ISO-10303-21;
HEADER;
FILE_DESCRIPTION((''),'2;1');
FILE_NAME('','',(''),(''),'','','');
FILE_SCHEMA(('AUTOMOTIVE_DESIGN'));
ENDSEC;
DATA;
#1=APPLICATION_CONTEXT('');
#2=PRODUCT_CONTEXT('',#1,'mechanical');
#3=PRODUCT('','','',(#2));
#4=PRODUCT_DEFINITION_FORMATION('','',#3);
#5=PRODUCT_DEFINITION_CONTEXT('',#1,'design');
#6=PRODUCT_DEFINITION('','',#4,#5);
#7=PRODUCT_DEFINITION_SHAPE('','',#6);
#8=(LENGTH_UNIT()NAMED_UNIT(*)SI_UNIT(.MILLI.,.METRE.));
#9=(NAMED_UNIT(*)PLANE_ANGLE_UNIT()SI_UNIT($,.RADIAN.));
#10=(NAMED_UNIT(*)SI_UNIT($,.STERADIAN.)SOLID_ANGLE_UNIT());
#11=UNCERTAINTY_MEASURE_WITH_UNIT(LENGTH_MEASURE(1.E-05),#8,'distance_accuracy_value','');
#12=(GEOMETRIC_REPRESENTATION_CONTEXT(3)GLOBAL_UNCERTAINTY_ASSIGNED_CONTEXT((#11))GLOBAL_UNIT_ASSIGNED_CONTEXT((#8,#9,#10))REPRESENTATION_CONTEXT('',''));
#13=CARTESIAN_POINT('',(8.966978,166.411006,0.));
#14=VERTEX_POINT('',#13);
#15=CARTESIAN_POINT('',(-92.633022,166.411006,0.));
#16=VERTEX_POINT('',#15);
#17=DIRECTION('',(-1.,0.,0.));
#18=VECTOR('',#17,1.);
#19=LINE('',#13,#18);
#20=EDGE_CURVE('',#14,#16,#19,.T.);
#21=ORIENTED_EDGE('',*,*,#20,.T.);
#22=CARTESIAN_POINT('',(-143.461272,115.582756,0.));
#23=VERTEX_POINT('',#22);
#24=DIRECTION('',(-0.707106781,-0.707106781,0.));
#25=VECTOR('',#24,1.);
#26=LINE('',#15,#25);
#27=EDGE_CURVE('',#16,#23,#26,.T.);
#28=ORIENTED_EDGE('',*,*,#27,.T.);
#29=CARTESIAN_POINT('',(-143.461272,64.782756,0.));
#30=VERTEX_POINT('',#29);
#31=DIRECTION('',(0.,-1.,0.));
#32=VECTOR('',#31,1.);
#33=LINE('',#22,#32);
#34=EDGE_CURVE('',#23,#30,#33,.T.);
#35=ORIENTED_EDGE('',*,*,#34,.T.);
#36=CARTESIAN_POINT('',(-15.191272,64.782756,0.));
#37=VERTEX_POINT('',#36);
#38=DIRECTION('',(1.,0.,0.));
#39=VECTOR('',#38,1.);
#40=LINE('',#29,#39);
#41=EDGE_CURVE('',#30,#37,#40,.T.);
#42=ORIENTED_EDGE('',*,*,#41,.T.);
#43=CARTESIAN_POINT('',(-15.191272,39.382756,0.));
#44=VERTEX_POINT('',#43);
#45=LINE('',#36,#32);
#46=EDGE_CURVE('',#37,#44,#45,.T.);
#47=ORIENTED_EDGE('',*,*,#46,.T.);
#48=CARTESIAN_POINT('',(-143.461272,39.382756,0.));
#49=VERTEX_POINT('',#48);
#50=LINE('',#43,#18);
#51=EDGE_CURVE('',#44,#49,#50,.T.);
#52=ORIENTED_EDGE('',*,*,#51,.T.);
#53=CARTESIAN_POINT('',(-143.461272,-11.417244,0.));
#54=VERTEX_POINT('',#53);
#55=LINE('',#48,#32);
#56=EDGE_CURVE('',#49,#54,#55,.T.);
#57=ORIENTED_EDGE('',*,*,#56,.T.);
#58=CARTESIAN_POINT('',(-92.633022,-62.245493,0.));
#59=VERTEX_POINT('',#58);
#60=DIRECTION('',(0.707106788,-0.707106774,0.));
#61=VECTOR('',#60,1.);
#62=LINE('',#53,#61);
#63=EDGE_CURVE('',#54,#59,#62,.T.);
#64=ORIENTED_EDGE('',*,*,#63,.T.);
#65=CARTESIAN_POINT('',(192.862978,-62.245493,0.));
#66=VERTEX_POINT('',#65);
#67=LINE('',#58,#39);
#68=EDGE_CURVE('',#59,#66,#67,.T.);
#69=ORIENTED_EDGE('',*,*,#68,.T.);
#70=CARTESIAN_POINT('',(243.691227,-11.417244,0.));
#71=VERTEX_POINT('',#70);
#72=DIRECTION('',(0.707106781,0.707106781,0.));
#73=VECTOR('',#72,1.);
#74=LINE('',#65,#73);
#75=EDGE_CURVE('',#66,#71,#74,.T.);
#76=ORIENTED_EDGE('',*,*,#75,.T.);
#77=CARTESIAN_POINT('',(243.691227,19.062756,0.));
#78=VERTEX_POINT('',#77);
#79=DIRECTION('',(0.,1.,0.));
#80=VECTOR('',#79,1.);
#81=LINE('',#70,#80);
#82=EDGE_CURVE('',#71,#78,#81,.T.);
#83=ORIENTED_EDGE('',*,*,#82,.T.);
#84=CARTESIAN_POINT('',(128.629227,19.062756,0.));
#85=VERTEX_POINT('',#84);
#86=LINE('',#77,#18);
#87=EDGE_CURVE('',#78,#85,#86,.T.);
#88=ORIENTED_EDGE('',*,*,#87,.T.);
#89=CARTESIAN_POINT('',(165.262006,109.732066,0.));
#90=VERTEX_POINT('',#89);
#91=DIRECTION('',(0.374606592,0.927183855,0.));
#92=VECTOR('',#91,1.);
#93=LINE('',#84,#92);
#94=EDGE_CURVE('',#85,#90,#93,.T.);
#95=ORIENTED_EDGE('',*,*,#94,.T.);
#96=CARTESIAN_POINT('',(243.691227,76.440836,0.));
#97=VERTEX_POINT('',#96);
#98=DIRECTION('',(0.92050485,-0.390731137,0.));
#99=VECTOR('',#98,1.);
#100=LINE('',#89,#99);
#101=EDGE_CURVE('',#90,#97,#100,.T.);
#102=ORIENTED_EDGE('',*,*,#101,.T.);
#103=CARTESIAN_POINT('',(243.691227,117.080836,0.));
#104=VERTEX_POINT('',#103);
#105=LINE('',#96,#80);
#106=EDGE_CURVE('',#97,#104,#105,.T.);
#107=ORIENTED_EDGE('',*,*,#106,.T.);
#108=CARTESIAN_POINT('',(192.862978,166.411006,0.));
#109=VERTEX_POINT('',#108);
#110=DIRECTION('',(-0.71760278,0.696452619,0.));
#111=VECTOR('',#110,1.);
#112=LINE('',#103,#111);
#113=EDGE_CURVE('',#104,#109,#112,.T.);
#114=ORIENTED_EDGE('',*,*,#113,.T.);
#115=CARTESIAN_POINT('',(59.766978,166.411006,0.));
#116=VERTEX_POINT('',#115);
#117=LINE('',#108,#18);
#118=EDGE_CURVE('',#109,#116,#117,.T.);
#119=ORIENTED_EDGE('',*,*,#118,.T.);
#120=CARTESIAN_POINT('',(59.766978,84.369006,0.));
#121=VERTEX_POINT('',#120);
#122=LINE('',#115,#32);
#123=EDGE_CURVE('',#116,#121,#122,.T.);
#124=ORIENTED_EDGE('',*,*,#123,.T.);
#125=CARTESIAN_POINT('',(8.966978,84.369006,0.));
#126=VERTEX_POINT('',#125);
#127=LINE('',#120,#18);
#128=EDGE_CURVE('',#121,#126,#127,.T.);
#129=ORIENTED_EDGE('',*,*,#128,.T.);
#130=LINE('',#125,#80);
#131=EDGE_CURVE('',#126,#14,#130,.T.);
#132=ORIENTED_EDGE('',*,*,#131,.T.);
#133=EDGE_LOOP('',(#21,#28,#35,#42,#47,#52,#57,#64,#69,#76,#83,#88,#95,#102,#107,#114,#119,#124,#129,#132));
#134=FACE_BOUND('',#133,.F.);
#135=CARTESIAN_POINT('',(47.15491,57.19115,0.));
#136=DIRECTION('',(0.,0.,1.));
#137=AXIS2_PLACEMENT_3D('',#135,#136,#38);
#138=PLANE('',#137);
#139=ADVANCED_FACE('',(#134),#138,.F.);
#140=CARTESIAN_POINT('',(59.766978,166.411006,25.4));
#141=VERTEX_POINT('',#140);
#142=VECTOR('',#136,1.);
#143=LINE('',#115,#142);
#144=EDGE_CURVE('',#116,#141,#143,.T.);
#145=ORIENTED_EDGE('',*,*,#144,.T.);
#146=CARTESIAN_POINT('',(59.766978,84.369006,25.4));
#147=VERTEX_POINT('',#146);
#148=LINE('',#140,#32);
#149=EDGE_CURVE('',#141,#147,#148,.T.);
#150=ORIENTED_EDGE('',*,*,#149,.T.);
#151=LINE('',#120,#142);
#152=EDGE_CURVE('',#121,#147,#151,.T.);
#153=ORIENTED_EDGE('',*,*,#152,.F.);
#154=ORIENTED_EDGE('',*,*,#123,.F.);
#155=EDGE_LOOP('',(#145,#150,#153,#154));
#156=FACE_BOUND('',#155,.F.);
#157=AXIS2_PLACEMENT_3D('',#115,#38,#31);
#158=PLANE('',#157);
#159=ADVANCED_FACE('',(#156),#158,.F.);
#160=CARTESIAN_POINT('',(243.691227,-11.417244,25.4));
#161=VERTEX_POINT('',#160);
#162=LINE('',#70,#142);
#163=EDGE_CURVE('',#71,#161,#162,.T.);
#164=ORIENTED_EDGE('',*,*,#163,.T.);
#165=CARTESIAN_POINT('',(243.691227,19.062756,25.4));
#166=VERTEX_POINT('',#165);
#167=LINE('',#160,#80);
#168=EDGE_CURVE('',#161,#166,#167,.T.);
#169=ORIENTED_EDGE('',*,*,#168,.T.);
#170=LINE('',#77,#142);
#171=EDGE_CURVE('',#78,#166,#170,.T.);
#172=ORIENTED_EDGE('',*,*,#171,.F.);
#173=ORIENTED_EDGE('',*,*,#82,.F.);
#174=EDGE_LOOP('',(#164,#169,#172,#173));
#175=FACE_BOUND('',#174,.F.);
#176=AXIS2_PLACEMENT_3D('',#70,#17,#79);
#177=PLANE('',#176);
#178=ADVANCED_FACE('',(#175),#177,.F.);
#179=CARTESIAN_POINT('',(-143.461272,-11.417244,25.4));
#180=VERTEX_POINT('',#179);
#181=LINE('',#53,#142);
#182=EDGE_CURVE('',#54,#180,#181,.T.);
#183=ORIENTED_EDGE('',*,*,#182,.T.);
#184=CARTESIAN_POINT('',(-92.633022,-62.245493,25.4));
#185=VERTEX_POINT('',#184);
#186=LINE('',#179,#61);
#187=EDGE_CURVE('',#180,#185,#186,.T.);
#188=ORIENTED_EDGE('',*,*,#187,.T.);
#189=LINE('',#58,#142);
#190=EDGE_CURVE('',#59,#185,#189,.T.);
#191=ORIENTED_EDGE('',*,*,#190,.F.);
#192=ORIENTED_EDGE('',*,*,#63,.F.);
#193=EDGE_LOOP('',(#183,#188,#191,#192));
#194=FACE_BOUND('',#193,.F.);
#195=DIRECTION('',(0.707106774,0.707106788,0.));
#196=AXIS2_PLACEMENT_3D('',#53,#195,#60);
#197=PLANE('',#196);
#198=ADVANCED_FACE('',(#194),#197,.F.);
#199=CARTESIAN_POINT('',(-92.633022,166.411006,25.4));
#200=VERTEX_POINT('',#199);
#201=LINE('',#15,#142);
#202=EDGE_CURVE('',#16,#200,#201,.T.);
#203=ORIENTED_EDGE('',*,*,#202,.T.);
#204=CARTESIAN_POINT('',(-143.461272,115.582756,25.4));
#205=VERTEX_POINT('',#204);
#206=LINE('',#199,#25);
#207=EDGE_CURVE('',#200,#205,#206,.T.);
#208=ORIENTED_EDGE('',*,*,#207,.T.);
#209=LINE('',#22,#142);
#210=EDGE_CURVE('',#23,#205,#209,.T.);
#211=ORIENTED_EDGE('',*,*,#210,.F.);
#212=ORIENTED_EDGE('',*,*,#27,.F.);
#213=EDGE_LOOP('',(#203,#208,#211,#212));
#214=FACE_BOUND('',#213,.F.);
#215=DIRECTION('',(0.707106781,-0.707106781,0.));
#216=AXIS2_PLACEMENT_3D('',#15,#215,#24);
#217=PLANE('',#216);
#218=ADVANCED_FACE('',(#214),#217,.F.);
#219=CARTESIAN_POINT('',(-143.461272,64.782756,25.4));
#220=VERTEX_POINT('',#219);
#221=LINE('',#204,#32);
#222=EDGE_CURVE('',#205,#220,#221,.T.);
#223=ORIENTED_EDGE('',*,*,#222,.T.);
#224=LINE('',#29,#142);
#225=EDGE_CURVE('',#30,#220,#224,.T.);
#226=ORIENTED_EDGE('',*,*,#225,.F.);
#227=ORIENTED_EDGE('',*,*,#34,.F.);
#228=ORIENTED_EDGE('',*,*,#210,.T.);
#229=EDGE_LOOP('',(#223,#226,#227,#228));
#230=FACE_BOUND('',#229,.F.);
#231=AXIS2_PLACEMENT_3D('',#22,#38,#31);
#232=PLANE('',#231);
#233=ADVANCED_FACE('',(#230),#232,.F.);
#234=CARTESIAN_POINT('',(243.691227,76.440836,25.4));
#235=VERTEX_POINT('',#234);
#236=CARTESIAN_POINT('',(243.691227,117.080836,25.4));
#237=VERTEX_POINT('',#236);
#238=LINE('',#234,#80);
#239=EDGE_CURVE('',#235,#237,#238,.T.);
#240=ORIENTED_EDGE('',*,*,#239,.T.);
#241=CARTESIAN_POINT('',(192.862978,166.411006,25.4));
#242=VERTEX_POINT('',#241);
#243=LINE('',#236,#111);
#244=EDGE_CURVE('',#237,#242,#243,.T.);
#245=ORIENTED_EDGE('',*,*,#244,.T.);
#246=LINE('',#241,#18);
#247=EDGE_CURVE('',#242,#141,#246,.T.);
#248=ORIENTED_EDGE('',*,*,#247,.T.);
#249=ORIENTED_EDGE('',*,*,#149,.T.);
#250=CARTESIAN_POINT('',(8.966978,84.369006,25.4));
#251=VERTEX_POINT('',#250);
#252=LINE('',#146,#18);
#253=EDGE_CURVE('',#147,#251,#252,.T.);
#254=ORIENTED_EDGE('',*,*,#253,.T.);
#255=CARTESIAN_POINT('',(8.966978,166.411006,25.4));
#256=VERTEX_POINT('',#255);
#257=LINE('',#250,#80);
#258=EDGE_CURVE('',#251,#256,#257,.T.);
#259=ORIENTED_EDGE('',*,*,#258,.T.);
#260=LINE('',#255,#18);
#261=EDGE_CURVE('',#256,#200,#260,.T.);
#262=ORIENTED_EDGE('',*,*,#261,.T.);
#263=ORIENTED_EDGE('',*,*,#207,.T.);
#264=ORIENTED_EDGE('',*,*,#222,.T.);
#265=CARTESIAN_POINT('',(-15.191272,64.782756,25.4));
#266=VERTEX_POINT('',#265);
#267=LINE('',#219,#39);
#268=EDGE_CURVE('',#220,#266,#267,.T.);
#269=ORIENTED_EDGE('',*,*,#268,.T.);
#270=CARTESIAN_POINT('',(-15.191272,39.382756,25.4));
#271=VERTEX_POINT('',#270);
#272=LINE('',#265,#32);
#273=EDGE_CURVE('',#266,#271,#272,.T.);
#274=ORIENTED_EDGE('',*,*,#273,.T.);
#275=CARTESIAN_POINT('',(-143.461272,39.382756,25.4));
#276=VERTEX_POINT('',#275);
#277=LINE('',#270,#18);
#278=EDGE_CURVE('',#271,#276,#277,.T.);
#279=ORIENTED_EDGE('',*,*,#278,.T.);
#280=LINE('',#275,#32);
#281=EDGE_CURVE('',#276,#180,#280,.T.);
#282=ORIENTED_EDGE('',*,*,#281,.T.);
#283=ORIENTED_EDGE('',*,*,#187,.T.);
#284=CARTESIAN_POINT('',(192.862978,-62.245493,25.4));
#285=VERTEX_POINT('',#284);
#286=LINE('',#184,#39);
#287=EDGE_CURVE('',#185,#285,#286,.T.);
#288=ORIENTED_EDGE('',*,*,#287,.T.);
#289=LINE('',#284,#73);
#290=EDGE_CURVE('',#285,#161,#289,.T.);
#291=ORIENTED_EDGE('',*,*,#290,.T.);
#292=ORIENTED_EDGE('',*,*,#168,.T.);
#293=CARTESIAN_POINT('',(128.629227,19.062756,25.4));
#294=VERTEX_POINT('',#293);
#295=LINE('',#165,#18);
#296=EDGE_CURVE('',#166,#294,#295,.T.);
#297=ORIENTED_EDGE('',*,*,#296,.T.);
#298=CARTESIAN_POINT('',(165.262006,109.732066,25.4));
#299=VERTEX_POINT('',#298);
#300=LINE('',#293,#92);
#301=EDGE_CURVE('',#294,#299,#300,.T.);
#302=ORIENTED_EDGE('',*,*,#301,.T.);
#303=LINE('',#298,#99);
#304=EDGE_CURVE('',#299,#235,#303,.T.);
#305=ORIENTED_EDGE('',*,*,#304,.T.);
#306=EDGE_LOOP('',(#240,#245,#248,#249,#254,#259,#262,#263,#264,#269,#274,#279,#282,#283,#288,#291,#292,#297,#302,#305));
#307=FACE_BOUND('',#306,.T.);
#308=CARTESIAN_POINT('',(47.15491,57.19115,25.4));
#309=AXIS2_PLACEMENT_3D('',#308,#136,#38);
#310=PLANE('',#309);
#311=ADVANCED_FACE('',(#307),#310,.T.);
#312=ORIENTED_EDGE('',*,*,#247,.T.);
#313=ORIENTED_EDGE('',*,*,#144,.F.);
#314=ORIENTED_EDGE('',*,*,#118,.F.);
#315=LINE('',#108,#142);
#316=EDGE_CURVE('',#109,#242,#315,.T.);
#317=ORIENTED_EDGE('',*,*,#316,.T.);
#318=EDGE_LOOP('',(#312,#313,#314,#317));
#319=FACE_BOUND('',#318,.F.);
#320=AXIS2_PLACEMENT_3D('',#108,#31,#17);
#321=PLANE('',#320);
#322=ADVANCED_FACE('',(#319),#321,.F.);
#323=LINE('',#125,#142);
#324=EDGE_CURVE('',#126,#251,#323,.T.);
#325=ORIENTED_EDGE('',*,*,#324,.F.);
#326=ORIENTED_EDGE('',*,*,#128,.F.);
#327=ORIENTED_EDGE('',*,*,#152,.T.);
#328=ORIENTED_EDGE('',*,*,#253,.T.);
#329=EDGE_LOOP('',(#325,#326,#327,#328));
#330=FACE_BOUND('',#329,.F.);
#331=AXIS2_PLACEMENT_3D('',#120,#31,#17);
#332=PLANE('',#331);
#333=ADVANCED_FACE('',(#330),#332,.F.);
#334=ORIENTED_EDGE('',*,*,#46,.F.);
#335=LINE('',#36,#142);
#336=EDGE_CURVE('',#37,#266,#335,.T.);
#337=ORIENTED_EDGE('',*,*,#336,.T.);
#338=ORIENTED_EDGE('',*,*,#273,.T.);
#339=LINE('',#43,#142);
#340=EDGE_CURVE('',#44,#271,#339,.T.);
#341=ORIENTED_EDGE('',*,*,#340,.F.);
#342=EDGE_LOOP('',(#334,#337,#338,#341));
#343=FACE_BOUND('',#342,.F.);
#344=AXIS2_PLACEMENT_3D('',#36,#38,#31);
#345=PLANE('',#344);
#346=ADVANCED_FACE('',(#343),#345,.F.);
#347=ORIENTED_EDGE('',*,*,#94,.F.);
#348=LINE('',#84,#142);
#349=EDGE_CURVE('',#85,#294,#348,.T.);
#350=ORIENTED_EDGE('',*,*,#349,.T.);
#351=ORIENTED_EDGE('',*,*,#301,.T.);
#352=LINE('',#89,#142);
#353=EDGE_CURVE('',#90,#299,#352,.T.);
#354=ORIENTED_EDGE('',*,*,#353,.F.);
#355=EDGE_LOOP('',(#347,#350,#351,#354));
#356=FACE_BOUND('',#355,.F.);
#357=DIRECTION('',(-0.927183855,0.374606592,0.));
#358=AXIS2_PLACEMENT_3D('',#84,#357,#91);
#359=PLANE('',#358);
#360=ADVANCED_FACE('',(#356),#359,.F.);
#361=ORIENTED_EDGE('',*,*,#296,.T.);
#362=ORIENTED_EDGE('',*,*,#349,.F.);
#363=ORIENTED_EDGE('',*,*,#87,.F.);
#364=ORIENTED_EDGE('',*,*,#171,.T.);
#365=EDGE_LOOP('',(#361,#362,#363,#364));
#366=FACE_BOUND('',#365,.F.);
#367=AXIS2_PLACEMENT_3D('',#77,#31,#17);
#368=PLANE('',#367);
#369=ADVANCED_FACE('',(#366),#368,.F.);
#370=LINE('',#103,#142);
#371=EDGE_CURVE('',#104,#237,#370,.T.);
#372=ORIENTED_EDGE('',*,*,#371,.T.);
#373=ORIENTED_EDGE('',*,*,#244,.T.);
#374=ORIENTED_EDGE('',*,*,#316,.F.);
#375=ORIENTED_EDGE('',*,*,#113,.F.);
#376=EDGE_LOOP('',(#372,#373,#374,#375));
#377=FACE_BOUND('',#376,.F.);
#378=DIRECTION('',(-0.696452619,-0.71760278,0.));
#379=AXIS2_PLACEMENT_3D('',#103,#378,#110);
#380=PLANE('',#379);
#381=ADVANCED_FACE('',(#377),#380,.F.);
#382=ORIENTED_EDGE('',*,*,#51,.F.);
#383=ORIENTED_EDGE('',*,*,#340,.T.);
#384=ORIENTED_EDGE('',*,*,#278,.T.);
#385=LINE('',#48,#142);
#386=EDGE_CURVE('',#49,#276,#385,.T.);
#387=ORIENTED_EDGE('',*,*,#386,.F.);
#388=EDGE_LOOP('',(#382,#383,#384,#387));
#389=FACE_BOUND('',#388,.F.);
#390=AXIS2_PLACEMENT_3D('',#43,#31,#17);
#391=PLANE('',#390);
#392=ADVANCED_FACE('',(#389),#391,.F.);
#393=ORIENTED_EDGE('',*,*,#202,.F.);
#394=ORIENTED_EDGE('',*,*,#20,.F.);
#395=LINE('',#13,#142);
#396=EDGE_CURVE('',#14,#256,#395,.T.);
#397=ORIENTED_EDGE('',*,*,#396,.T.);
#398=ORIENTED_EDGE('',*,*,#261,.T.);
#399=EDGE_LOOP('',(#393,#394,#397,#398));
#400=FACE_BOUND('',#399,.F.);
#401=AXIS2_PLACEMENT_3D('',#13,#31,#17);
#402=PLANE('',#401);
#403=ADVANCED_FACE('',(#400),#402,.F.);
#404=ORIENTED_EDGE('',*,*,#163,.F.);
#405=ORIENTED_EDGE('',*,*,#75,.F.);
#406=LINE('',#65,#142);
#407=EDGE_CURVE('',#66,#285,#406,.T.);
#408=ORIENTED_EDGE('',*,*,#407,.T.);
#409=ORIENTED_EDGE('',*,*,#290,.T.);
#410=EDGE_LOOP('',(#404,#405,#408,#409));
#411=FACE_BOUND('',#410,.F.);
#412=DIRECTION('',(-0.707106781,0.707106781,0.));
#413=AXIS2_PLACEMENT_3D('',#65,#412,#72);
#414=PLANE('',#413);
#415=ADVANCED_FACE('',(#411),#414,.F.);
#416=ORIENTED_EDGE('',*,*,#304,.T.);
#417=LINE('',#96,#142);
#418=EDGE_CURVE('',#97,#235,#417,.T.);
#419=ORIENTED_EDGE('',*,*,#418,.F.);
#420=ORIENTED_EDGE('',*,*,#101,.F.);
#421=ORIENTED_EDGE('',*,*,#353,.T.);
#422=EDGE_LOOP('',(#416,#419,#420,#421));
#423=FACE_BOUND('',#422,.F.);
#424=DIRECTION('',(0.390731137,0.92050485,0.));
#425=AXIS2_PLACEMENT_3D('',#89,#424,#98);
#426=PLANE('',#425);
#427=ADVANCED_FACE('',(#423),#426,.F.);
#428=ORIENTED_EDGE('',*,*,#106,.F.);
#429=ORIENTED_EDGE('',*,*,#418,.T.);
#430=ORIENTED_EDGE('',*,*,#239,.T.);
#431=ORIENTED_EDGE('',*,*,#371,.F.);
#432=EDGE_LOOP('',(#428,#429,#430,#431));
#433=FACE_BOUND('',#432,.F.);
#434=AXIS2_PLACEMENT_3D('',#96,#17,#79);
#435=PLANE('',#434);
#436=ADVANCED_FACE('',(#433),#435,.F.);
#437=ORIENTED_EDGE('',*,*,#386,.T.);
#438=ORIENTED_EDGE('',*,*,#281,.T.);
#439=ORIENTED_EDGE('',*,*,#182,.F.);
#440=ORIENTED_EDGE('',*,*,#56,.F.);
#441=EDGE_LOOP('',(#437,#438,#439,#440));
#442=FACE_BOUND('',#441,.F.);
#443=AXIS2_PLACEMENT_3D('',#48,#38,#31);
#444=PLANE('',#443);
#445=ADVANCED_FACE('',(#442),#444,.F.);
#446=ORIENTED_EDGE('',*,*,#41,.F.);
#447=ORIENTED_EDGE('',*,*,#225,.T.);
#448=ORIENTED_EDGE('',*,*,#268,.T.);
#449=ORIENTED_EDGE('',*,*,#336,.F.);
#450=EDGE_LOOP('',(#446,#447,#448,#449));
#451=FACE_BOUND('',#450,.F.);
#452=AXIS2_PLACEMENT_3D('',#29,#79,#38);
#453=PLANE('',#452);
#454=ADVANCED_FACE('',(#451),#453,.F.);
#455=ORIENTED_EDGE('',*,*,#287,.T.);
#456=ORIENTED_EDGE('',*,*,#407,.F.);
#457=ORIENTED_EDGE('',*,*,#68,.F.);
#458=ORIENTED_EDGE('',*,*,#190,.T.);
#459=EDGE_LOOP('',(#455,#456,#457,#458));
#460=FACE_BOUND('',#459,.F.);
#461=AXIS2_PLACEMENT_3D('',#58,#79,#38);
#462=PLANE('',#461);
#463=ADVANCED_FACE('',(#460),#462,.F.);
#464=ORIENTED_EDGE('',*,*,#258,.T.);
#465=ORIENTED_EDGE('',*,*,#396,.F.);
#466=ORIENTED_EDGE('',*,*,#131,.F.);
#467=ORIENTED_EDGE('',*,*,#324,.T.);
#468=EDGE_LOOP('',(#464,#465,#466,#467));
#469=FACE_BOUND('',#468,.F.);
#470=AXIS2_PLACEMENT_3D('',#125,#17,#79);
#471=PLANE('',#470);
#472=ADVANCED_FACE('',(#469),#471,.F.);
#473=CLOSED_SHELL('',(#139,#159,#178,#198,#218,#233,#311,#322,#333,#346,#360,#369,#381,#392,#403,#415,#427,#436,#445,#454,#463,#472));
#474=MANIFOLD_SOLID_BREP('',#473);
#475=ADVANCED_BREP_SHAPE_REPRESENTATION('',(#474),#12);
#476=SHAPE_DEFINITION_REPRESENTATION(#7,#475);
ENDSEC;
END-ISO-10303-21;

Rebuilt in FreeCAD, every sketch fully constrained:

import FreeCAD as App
import Part
import Sketcher
from FreeCAD import Vector
Q = App.Units.Quantity


def add_polygon(sketch, points):
    """Adds a closed chain of lines whose ends are joined by coincident constraints."""
    first, n = sketch.GeometryCount, len(points)
    for a, b in zip(points, points[1:] + points[:1]):
        sketch.addGeometry(Part.LineSegment(App.Vector(*a, 0), App.Vector(*b, 0)), False)
    for i in range(n):
        sketch.addConstraint(Sketcher.Constraint("Coincident", first + i, 2, first + (i + 1) % n, 1))

doc = App.newDocument("Part")
params = doc.addObject("Spreadsheet::Sheet", "Params")
for row, (alias, value) in enumerate([
    ("sketch1_width", "2 in"),
    ("sketch1_width2", "4 in"),
    ("sketch1_height", "1 in"),
    ("sketch1_height2", "1.2 in"),
    ("sketch1_height3", "1.6 in"),
    ("pad1_length", "1 in"),
], start=1):
    params.set(f"A{row}", alias)
    params.set(f"B{row}", "=" + value)
    params.setAlias(f"B{row}", alias)

body = doc.addObject("PartDesign::Body", "Body")

# Sketch on XY plane
sketch1 = doc.addObject("Sketcher::SketchObject", "Sketch")
body.addObject(sketch1)
sketch1.AttachmentSupport = (doc.XY_Plane, [""])
sketch1.MapMode = "FlatFace"
add_polygon(sketch1, [(-143, -11), (-93, -62), (193, -62), (244, -11), (244, 19), (129, 19), (165, 110), (244, 76), (244, 117), (193, 166), (60, 166), (60, 84), (9, 84), (9, 166), (-93, 166), (-143, 116), (-143, 65), (-15, 65), (-15, 39), (-143, 39)])  # lines 0-19
sketch1.addConstraint([
    Sketcher.Constraint("Horizontal", 1),
    Sketcher.Constraint("Vertical", 3),
    Sketcher.Constraint("Horizontal", 4),
    Sketcher.Constraint("Vertical", 7),
    Sketcher.Constraint("Horizontal", 9),
    Sketcher.Constraint("Vertical", 10),
    Sketcher.Constraint("Horizontal", 11),
    Sketcher.Constraint("Vertical", 12),
    Sketcher.Constraint("Horizontal", 13),
    Sketcher.Constraint("Vertical", 15),
    Sketcher.Constraint("Horizontal", 16),
    Sketcher.Constraint("Vertical", 17),
    Sketcher.Constraint("Horizontal", 18),
    Sketcher.Constraint("Vertical", 19),
    Sketcher.Constraint("Perpendicular", 0, 2),
    Sketcher.Constraint("Parallel", 2, 14),
    Sketcher.Constraint("Horizontal", 9, 2, 12, 2),
    Sketcher.Constraint("Horizontal", 2, 2, 19, 2),
    Sketcher.Constraint("Vertical", 3, 2, 6, 2),
    Sketcher.Constraint("Vertical", 1, 2, 8, 2),
    Sketcher.Constraint("Vertical", 0, 2, 13, 2),
    Sketcher.Constraint("Vertical", 15, 2, 18, 2),
    Sketcher.Constraint("Equal", 11, 15),
    Sketcher.Constraint("Equal", 15, 19),
    Sketcher.Constraint("Equal", 0, 2),
    Sketcher.Constraint("DistanceX", 11, 2, 11, 1, Q("2 in")),
    Sketcher.Constraint("DistanceX", 13, 2, 13, 1, Q("4 in")),
    Sketcher.Constraint("DistanceY", 17, 2, 17, 1, Q("1 in")),
    Sketcher.Constraint("DistanceY", 3, 1, 3, 2, Q("1.2 in")),
    Sketcher.Constraint("DistanceY", 7, 1, 7, 2, Q("1.6 in")),
    Sketcher.Constraint("Angle", 5, Q("68 deg")),
    Sketcher.Constraint("Angle", 6, Q("-23.000001 deg")),
    Sketcher.Constraint("DistanceX", 1, 1, 1, 2, Q("11.24 in")),
    Sketcher.Constraint("DistanceX", 4, 2, 4, 1, Q("4.53 in")),
    Sketcher.Constraint("DistanceX", 16, 1, 16, 2, Q("5.05 in")),
    Sketcher.Constraint("DistanceY", 10, 2, 10, 1, Q("3.23 in")),
    Sketcher.Constraint("Distance", 0, Q("2.83 in")),
    Sketcher.Constraint("Distance", 5, Q("3.85 in")),
    Sketcher.Constraint("DistanceX", 0, 2, -1, 1, 92.633022),
    Sketcher.Constraint("DistanceY", 0, 2, -1, 1, 62.245493),
])
sketch1.setExpression("Constraints[45]", "Params.sketch1_width")
sketch1.setExpression("Constraints[46]", "Params.sketch1_width2")
sketch1.setExpression("Constraints[47]", "Params.sketch1_height")
sketch1.setExpression("Constraints[48]", "Params.sketch1_height2")
sketch1.setExpression("Constraints[49]", "Params.sketch1_height3")
pad1 = doc.addObject("PartDesign::Pad", "Pad")
body.addObject(pad1)
pad1.Profile = sketch1
pad1.setExpression("Length", "Params.pad1_length")

doc.recompute()
